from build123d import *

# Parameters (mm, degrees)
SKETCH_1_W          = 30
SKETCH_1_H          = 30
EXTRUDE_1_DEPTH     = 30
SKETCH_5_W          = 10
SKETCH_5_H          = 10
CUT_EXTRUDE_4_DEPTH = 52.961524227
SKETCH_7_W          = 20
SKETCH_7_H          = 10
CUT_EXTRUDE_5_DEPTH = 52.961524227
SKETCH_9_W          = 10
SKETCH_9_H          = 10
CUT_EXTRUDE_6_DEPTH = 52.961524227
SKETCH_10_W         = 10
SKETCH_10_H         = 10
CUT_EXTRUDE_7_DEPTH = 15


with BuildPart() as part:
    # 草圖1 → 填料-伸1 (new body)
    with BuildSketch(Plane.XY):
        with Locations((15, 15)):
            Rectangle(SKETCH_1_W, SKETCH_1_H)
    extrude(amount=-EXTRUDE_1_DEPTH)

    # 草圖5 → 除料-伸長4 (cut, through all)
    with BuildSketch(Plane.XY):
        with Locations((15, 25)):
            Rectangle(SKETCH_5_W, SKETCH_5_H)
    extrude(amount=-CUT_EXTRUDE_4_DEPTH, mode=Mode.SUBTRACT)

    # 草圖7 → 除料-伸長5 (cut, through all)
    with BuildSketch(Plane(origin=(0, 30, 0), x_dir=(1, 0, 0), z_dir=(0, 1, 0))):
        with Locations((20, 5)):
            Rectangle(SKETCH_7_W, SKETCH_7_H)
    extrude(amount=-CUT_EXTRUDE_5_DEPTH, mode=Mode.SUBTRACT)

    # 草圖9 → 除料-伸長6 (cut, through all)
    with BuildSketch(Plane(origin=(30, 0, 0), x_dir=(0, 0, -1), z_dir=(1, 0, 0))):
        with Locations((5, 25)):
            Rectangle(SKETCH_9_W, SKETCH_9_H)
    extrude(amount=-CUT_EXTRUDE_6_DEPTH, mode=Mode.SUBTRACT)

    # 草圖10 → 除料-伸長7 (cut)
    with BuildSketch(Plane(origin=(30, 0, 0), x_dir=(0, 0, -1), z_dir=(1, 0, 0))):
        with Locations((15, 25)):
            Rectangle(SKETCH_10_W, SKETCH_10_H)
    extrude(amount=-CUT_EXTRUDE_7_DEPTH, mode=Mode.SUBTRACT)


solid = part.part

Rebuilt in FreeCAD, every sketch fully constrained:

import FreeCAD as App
import Part
import Sketcher
from FreeCAD import Vector

doc = App.newDocument("Part")
body = doc.addObject("PartDesign::Body", "Body")

# Sketch on XY plane
sketch1 = body.newObject("Sketcher::SketchObject", "Sketch")
sketch1.AttachmentSupport = (doc.getObject("XY_Plane"), [""])
sketch1.MapMode = "FlatFace"
sketch1.addGeometry([
    Part.LineSegment(Vector(0, 30, 0), Vector(0, 0, 0)),
    Part.LineSegment(Vector(0, 0, 0), Vector(30, 0, 0)),
    Part.LineSegment(Vector(30, 0, 0), Vector(30, 30, 0)),
    Part.LineSegment(Vector(30, 30, 0), Vector(0, 30, 0)),
], False)
sketch1.addConstraint([
    Sketcher.Constraint("Coincident", 0, 2, 1, 1),
    Sketcher.Constraint("Coincident", 1, 2, 2, 1),
    Sketcher.Constraint("Coincident", 2, 2, 3, 1),
    Sketcher.Constraint("Coincident", 3, 2, 0, 1),
    Sketcher.Constraint("Vertical", 0),
    Sketcher.Constraint("Horizontal", 1),
    Sketcher.Constraint("Vertical", 2),
    Sketcher.Constraint("Horizontal", 3),
    Sketcher.Constraint("Coincident", 0, 2, -1, 1),
    Sketcher.Constraint("Equal", 3, 0),
    Sketcher.Constraint("DistanceX", 1, 1, 1, 2, 30.0),
])
pad1 = body.newObject("PartDesign::Pad", "Pad")
pad1.Profile = sketch1
pad1.Length = 30
pad1.Reversed = True

# Sketch on XY plane
sketch2 = body.newObject("Sketcher::SketchObject", "Sketch001")
sketch2.AttachmentSupport = (doc.getObject("XY_Plane"), [""])
sketch2.MapMode = "FlatFace"
sketch2.addGeometry([
    Part.LineSegment(Vector(10, 30, 0), Vector(10, 20, 0)),
    Part.LineSegment(Vector(10, 20, 0), Vector(20, 20, 0)),
    Part.LineSegment(Vector(20, 20, 0), Vector(20, 30, 0)),
    Part.LineSegment(Vector(20, 30, 0), Vector(10, 30, 0)),
], False)
sketch2.addConstraint([
    Sketcher.Constraint("Coincident", 0, 2, 1, 1),
    Sketcher.Constraint("Coincident", 1, 2, 2, 1),
    Sketcher.Constraint("Coincident", 2, 2, 3, 1),
    Sketcher.Constraint("Coincident", 3, 2, 0, 1),
    Sketcher.Constraint("Vertical", 0),
    Sketcher.Constraint("Horizontal", 1),
    Sketcher.Constraint("Vertical", 2),
    Sketcher.Constraint("Horizontal", 3),
    Sketcher.Constraint("Equal", 3, 0),
    Sketcher.Constraint("DistanceX", 1, 1, 1, 2, 10.0),
    Sketcher.Constraint("DistanceX", -1, 1, 0, 2, 10.0),
    Sketcher.Constraint("DistanceY", -1, 1, 0, 2, 20.0),
])
pocket1 = body.newObject("PartDesign::Pocket", "Pocket")
pocket1.Profile = sketch2
pocket1.Type = "ThroughAll"

# Sketch on XZ plane
sketch3 = body.newObject("Sketcher::SketchObject", "Sketch002")
sketch3.AttachmentSupport = (doc.getObject("XZ_Plane"), [""])
sketch3.MapMode = "FlatFace"
sketch3.AttachmentOffset = App.Placement(Vector(0, 0, -30), App.Rotation())
sketch3.addGeometry([
    Part.LineSegment(Vector(10, -10, 0), Vector(10, 0, 0)),
    Part.LineSegment(Vector(10, 0, 0), Vector(30, 0, 0)),
    Part.LineSegment(Vector(30, 0, 0), Vector(30, -10, 0)),
    Part.LineSegment(Vector(30, -10, 0), Vector(10, -10, 0)),
], False)
sketch3.addConstraint([
    Sketcher.Constraint("Coincident", 0, 2, 1, 1),
    Sketcher.Constraint("Coincident", 1, 2, 2, 1),
    Sketcher.Constraint("Coincident", 2, 2, 3, 1),
    Sketcher.Constraint("Coincident", 3, 2, 0, 1),
    Sketcher.Constraint("Vertical", 0),
    Sketcher.Constraint("Horizontal", 1),
    Sketcher.Constraint("Vertical", 2),
    Sketcher.Constraint("Horizontal", 3),
    Sketcher.Constraint("PointOnObject", 0, 2, -1),
    Sketcher.Constraint("DistanceX", 1, 1, 1, 2, 20.0),
    Sketcher.Constraint("DistanceY", 0, 1, 0, 2, 10.0),
    Sketcher.Constraint("DistanceX", -1, 1, 0, 2, 10.0),
])
pocket2 = body.newObject("PartDesign::Pocket", "Pocket001")
pocket2.Profile = sketch3
pocket2.Type = "ThroughAll"
pocket2.Reversed = True

# Sketch on YZ plane
sketch4 = body.newObject("Sketcher::SketchObject", "Sketch003")
sketch4.AttachmentSupport = (doc.getObject("YZ_Plane"), [""])
sketch4.MapMode = "FlatFace"
sketch4.AttachmentOffset = App.Placement(Vector(0, 0, 30), App.Rotation())
sketch4.addGeometry([
    Part.LineSegment(Vector(30, 0, 0), Vector(20, 0, 0)),
    Part.LineSegment(Vector(20, 0, 0), Vector(20, -10, 0)),
    Part.LineSegment(Vector(20, -10, 0), Vector(30, -10, 0)),
    Part.LineSegment(Vector(30, -10, 0), Vector(30, 0, 0)),
], False)
sketch4.addConstraint([
    Sketcher.Constraint("Coincident", 0, 2, 1, 1),
    Sketcher.Constraint("Coincident", 1, 2, 2, 1),
    Sketcher.Constraint("Coincident", 2, 2, 3, 1),
    Sketcher.Constraint("Coincident", 3, 2, 0, 1),
    Sketcher.Constraint("Horizontal", 0),
    Sketcher.Constraint("Vertical", 1),
    Sketcher.Constraint("Horizontal", 2),
    Sketcher.Constraint("Vertical", 3),
    Sketcher.Constraint("PointOnObject", 0, 2, -1),
    Sketcher.Constraint("Equal", 2, 1),
    Sketcher.Constraint("DistanceX", 0, 2, 0, 1, 10.0),
    Sketcher.Constraint("DistanceX", -1, 1, 0, 2, 20.0),
])
pocket3 = body.newObject("PartDesign::Pocket", "Pocket002")
pocket3.Profile = sketch4
pocket3.Type = "ThroughAll"

# Sketch on YZ plane
sketch5 = body.newObject("Sketcher::SketchObject", "Sketch004")
sketch5.AttachmentSupport = (doc.getObject("YZ_Plane"), [""])
sketch5.MapMode = "FlatFace"
sketch5.AttachmentOffset = App.Placement(Vector(0, 0, 30), App.Rotation())
sketch5.addGeometry([
    Part.LineSegment(Vector(30, -10, 0), Vector(20, -10, 0)),
    Part.LineSegment(Vector(20, -10, 0), Vector(20, -20, 0)),
    Part.LineSegment(Vector(20, -20, 0), Vector(30, -20, 0)),
    Part.LineSegment(Vector(30, -20, 0), Vector(30, -10, 0)),
], False)
sketch5.addConstraint([
    Sketcher.Constraint("Coincident", 0, 2, 1, 1),
    Sketcher.Constraint("Coincident", 1, 2, 2, 1),
    Sketcher.Constraint("Coincident", 2, 2, 3, 1),
    Sketcher.Constraint("Coincident", 3, 2, 0, 1),
    Sketcher.Constraint("Horizontal", 0),
    Sketcher.Constraint("Vertical", 1),
    Sketcher.Constraint("Horizontal", 2),
    Sketcher.Constraint("Vertical", 3),
    Sketcher.Constraint("Equal", 2, 1),
    Sketcher.Constraint("DistanceX", 0, 2, 0, 1, 10.0),
    Sketcher.Constraint("DistanceX", -1, 1, 0, 2, 20.0),
    Sketcher.Constraint("DistanceY", 0, 2, -1, 1, 10.0),
])
pocket4 = body.newObject("PartDesign::Pocket", "Pocket003")
pocket4.Profile = sketch5
pocket4.Length = 15

doc.recompute()
